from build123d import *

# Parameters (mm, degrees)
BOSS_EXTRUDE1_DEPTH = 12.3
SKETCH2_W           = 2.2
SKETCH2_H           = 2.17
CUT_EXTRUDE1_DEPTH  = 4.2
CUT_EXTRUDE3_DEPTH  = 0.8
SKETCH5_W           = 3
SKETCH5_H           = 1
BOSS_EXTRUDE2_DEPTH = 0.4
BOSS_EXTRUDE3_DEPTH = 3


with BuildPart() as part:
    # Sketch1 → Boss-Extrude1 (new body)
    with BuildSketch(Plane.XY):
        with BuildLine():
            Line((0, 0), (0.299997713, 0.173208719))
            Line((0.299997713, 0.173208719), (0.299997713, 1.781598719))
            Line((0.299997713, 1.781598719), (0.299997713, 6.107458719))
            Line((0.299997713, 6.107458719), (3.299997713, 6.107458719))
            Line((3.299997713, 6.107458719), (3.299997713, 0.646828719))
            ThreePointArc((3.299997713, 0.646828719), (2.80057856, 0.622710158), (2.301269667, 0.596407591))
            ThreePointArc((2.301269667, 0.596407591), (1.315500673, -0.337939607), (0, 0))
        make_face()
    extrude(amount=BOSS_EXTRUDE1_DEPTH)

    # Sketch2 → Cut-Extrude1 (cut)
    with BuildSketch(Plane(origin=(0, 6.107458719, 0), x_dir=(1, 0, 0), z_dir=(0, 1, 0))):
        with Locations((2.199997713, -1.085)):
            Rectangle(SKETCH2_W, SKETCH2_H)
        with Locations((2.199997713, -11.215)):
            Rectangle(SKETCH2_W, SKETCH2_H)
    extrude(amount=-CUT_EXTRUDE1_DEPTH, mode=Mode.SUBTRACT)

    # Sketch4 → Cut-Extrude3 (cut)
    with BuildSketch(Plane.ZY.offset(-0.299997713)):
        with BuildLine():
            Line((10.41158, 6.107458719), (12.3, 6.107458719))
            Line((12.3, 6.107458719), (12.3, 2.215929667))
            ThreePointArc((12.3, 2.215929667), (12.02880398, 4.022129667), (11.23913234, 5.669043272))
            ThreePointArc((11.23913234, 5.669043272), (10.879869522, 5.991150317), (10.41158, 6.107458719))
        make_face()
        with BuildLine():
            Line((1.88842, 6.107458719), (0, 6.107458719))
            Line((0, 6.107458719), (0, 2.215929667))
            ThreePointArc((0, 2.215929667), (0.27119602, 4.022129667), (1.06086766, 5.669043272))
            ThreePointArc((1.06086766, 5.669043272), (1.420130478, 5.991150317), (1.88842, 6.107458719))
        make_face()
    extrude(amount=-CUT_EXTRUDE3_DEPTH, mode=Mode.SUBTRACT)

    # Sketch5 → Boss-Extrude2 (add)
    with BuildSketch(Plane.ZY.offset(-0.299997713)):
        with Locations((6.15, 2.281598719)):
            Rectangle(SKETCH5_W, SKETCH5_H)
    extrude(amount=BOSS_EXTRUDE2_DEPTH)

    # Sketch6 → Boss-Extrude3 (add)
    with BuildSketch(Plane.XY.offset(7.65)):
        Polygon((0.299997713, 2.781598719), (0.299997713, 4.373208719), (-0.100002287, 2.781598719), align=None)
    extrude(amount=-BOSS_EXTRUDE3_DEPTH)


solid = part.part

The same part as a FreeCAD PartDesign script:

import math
import FreeCAD as App
import Part
import Sketcher

V = App.Vector
Q = App.Units.Quantity

doc = App.newDocument("Part")
params = doc.addObject("Spreadsheet::Sheet", "Params")
for row, (alias, value) in enumerate([
    ("sketch1_width", "3 mm"),
    ("pad1_length", "12.3 mm"),
    ("sketch2_width", "2.2 mm"),
    ("sketch2_height", "2.17 mm"),
    ("pocket1_length", "4.2 mm"),
    ("pocket2_length", "0.8 mm"),
    ("sketch4_width", "1 mm"),
    ("sketch4_height", "3 mm"),
    ("pad2_length", "0.4 mm"),
    ("sketch5_width", "0.4 mm"),
    ("pad3_length", "3 mm"),
], start=1):
    params.set(f"A{row}", alias)
    params.set(f"B{row}", "=" + value)
    params.setAlias(f"B{row}", alias)

body = doc.addObject("PartDesign::Body", "Body")

# Sketch on XY plane
sketch1 = doc.addObject("Sketcher::SketchObject", "Sketch")
body.addObject(sketch1)
sketch1.AttachmentSupport = (doc.XY_Plane, [""])
sketch1.MapMode = "FlatFace"
sketch1.addGeometry([
    Part.LineSegment(V(0.299998, 0.173209, 0), V(0, 0, 0)),  # 0
    Part.ArcOfCircle(Part.Circle(V(0.963377, 1.020747, 0), V(0, 0, 1), 1.403574), math.radians(-133.343791), math.radians(-17.597465)),  # 1
    Part.ArcOfCircle(Part.Circle(V(8.564898, -113.555374, 0), V(0, 0, 1), 114.323499), math.radians(92.639556), math.radians(93.14073)),  # 2
    Part.LineSegment(V(3.299998, 0.646829, 0), V(3.299998, 6.107459, 0)),  # 3
    Part.LineSegment(V(3.299998, 6.107459, 0), V(0.299998, 6.107459, 0)),  # 4
    Part.LineSegment(V(0.299998, 6.107459, 0), V(0.299998, 0.173209, 0)),  # 5
], False)
sketch1.addConstraint([
    Sketcher.Constraint("Coincident", 0, 2, 1, 1),
    Sketcher.Constraint("Coincident", 1, 2, 2, 2),
    Sketcher.Constraint("Coincident", 2, 1, 3, 1),
    Sketcher.Constraint("Coincident", 3, 2, 4, 1),
    Sketcher.Constraint("Coincident", 4, 2, 5, 1),
    Sketcher.Constraint("Coincident", 5, 2, 0, 1),
    Sketcher.Constraint("Vertical", 3),
    Sketcher.Constraint("Horizontal", 4),
    Sketcher.Constraint("Vertical", 5),
    Sketcher.Constraint("Coincident", 0, 2, -1, 1),
    Sketcher.Constraint("DistanceX", 4, 2, 4, 1, Q("3 mm")),
    Sketcher.Constraint("Radius", 2, Q("114.323499 mm")),
    Sketcher.Constraint("Radius", 1, Q("1.403574 mm")),
    Sketcher.Constraint("DistanceY", 3, 1, 3, 2, Q("5.46063 mm")),
    Sketcher.Constraint("DistanceY", 5, 2, 5, 1, Q("5.93425 mm")),
    Sketcher.Constraint("DistanceX", -1, 1, 2, 3, Q("8.564898 mm")),
    Sketcher.Constraint("DistanceX", 2, 1, 2, 3, Q("5.264901 mm")),
    Sketcher.Constraint("DistanceY", 5, 2, 1, 2, Q("0.423199 mm")),
    Sketcher.Constraint("Distance", 0, Q("0.34641 mm")),
])
sketch1.setExpression("Constraints[10]", "Params.sketch1_width")
pad1 = doc.addObject("PartDesign::Pad", "Pad")
body.addObject(pad1)
pad1.Profile = sketch1
pad1.setExpression("Length", "Params.pad1_length")

# Sketch on XZ plane
sketch2 = doc.addObject("Sketcher::SketchObject", "Sketch001")
body.addObject(sketch2)
sketch2.AttachmentSupport = (doc.XZ_Plane, [""])
sketch2.MapMode = "FlatFace"
sketch2.AttachmentOffset = App.Placement(V(0, 0, -6.107459), App.Rotation())
sketch2.addGeometry([
    Part.LineSegment(V(1.099998, 0, 0), V(1.099998, 2.17, 0)),  # 0
    Part.LineSegment(V(1.099998, 2.17, 0), V(3.299998, 2.17, 0)),  # 1
    Part.LineSegment(V(3.299998, 2.17, 0), V(3.299998, 0, 0)),  # 2
    Part.LineSegment(V(3.299998, 0, 0), V(1.099998, 0, 0)),  # 3
    Part.LineSegment(V(1.099998, 10.13, 0), V(1.099998, 12.3, 0)),  # 4
    Part.LineSegment(V(1.099998, 12.3, 0), V(3.299998, 12.3, 0)),  # 5
    Part.LineSegment(V(3.299998, 12.3, 0), V(3.299998, 10.13, 0)),  # 6
    Part.LineSegment(V(3.299998, 10.13, 0), V(1.099998, 10.13, 0)),  # 7
], False)
sketch2.addConstraint([
    Sketcher.Constraint("Coincident", 0, 2, 1, 1),
    Sketcher.Constraint("Coincident", 1, 2, 2, 1),
    Sketcher.Constraint("Coincident", 2, 2, 3, 1),
    Sketcher.Constraint("Coincident", 3, 2, 0, 1),
    Sketcher.Constraint("Coincident", 4, 2, 5, 1),
    Sketcher.Constraint("Coincident", 5, 2, 6, 1),
    Sketcher.Constraint("Coincident", 6, 2, 7, 1),
    Sketcher.Constraint("Coincident", 7, 2, 4, 1),
    Sketcher.Constraint("Vertical", 0),
    Sketcher.Constraint("Horizontal", 1),
    Sketcher.Constraint("Vertical", 2),
    Sketcher.Constraint("Horizontal", 3),
    Sketcher.Constraint("Vertical", 4),
    Sketcher.Constraint("Horizontal", 5),
    Sketcher.Constraint("Vertical", 6),
    Sketcher.Constraint("Horizontal", 7),
    Sketcher.Constraint("PointOnObject", 2, 2, -1),
    Sketcher.Constraint("Vertical", 3, 2, 4, 2),
    Sketcher.Constraint("Vertical", 2, 2, 5, 2),
    Sketcher.Constraint("Equal", 2, 4),
    Sketcher.Constraint("DistanceX", 1, 1, 1, 2, Q("2.2 mm")),
    Sketcher.Constraint("DistanceY", 0, 1, 0, 2, Q("2.17 mm")),
    Sketcher.Constraint("DistanceY", -1, 1, 4, 2, Q("12.3 mm")),
    Sketcher.Constraint("DistanceX", -1, 1, 0, 2, Q("1.099998 mm")),
])
sketch2.setExpression("Constraints[20]", "Params.sketch2_width")
sketch2.setExpression("Constraints[21]", "Params.sketch2_height")
pocket1 = doc.addObject("PartDesign::Pocket", "Pocket")
body.addObject(pocket1)
pocket1.Profile = sketch2
pocket1.setExpression("Length", "Params.pocket1_length")
pocket1.Reversed = True

# Sketch on YZ plane
sketch3 = doc.addObject("Sketcher::SketchObject", "Sketch002")
body.addObject(sketch3)
sketch3.AttachmentSupport = (doc.YZ_Plane, [""])
sketch3.MapMode = "FlatFace"
sketch3.AttachmentOffset = App.Placement(V(0, 0, 0.299998), App.Rotation())
sketch3.addGeometry([
    Part.LineSegment(V(6.107459, 12.3, 0), V(6.107459, 10.41158, 0)),  # 0
    Part.ArcOfCircle(Part.Circle(V(5.107767, 10.411877, 0), V(0, 0, 1), 0.999691), math.radians(-0.016996), math.radians(55.843926)),  # 1
    Part.ArcOfCircle(Part.Circle(V(2.21593, 6.149641, 0), V(0, 0, 1), 6.150359), math.radians(55.843927), math.radians(90)),  # 2
    Part.LineSegment(V(2.21593, 12.3, 0), V(6.107459, 12.3, 0)),  # 3
    Part.LineSegment(V(6.107459, 1.88842, 0), V(6.107459, 0, 0)),  # 4
    Part.LineSegment(V(6.107459, 0, 0), V(2.21593, 0, 0)),  # 5
    Part.ArcOfCircle(Part.Circle(V(2.21593, 6.150359, 0), V(0, 0, 1), 6.150359), math.radians(-90), math.radians(-55.843927)),  # 6
    Part.ArcOfCircle(Part.Circle(V(5.107767, 1.888123, 0), V(0, 0, 1), 0.999691), math.radians(-55.843926), math.radians(0.016996)),  # 7
], False)
sketch3.addConstraint([
    Sketcher.Constraint("Coincident", 0, 2, 1, 1),
    Sketcher.Constraint("Tangent", 1, 2, 2, 1),
    Sketcher.Constraint("Tangent", 2, 2, 3, 1),
    Sketcher.Constraint("Coincident", 3, 2, 0, 1),
    Sketcher.Constraint("Coincident", 4, 2, 5, 1),
    Sketcher.Constraint("Tangent", 5, 2, 6, 1),
    Sketcher.Constraint("Tangent", 6, 2, 7, 1),
    Sketcher.Constraint("Coincident", 7, 2, 4, 1),
    Sketcher.Constraint("Vertical", 0),
    Sketcher.Constraint("Horizontal", 3),
    Sketcher.Constraint("Vertical", 4),
    Sketcher.Constraint("Horizontal", 5),
    Sketcher.Constraint("Equal", 2, 6),
    Sketcher.Constraint("Equal", 1, 7),
    Sketcher.Constraint("PointOnObject", 4, 2, -1),
    Sketcher.Constraint("Vertical", 2, 3, 6, 3),
    Sketcher.Constraint("Vertical", 1, 3, 7, 3),
    Sketcher.Constraint("Equal", 0, 4),
    Sketcher.Constraint("DistanceY", -1, 1, 2, 2, Q("12.3 mm")),
    Sketcher.Constraint("Radius", 1, Q("0.999691 mm")),
    Sketcher.Constraint("Radius", 2, Q("6.150359 mm")),
    Sketcher.Constraint("DistanceX", 3, 1, 3, 2, Q("3.891529 mm")),
    Sketcher.Constraint("DistanceY", 0, 2, 0, 1, Q("1.88842 mm")),
    Sketcher.Constraint("DistanceX", -1, 1, 2, 3, Q("2.21593 mm")),
])
pocket2 = doc.addObject("PartDesign::Pocket", "Pocket001")
body.addObject(pocket2)
pocket2.Profile = sketch3
pocket2.setExpression("Length", "Params.pocket2_length")
pocket2.Reversed = True

# Sketch on YZ plane
sketch4 = doc.addObject("Sketcher::SketchObject", "Sketch003")
body.addObject(sketch4)
sketch4.AttachmentSupport = (doc.YZ_Plane, [""])
sketch4.MapMode = "FlatFace"
sketch4.AttachmentOffset = App.Placement(V(0, 0, 0.299998), App.Rotation())
sketch4.addGeometry([
    Part.LineSegment(V(2.781599, 4.65, 0), V(1.781599, 4.65, 0)),
    Part.LineSegment(V(1.781599, 4.65, 0), V(1.781599, 7.65, 0)),
    Part.LineSegment(V(1.781599, 7.65, 0), V(2.781599, 7.65, 0)),
    Part.LineSegment(V(2.781599, 7.65, 0), V(2.781599, 4.65, 0)),
], False)
sketch4.addConstraint([
    Sketcher.Constraint("Coincident", 0, 2, 1, 1),
    Sketcher.Constraint("Coincident", 1, 2, 2, 1),
    Sketcher.Constraint("Coincident", 2, 2, 3, 1),
    Sketcher.Constraint("Coincident", 3, 2, 0, 1),
    Sketcher.Constraint("Horizontal", 0),
    Sketcher.Constraint("Vertical", 1),
    Sketcher.Constraint("Horizontal", 2),
    Sketcher.Constraint("Vertical", 3),
    Sketcher.Constraint("DistanceX", 0, 2, 0, 1, Q("1 mm")),
    Sketcher.Constraint("DistanceY", 1, 1, 1, 2, Q("3 mm")),
    Sketcher.Constraint("DistanceY", -1, 1, 0, 2, Q("4.65 mm")),
    Sketcher.Constraint("DistanceX", -1, 1, 0, 2, Q("1.781599 mm")),
])
sketch4.setExpression("Constraints[8]", "Params.sketch4_width")
sketch4.setExpression("Constraints[9]", "Params.sketch4_height")
pad2 = doc.addObject("PartDesign::Pad", "Pad001")
body.addObject(pad2)
pad2.Profile = sketch4
pad2.setExpression("Length", "Params.pad2_length")
pad2.Reversed = True

# Sketch on XY plane
sketch5 = doc.addObject("Sketcher::SketchObject", "Sketch004")
body.addObject(sketch5)
sketch5.AttachmentSupport = (doc.XY_Plane, [""])
sketch5.MapMode = "FlatFace"
sketch5.AttachmentOffset = App.Placement(V(0, 0, 7.65), App.Rotation())
sketch5.addGeometry([
    Part.LineSegment(V(0.299998, 2.781599, 0), V(0.299998, 4.373209, 0)),
    Part.LineSegment(V(0.299998, 4.373209, 0), V(-0.100002, 2.781599, 0)),
    Part.LineSegment(V(-0.100002, 2.781599, 0), V(0.299998, 2.781599, 0)),
], False)
sketch5.addConstraint([
    Sketcher.Constraint("Coincident", 0, 2, 1, 1),
    Sketcher.Constraint("Coincident", 1, 2, 2, 1),
    Sketcher.Constraint("Coincident", 2, 2, 0, 1),
    Sketcher.Constraint("Vertical", 0),
    Sketcher.Constraint("Horizontal", 2),
    Sketcher.Constraint("DistanceX", 2, 1, 2, 2, Q("0.4 mm")),
    Sketcher.Constraint("DistanceY", 0, 1, 0, 2, Q("1.59161 mm")),
    Sketcher.Constraint("DistanceY", -1, 1, 1, 2, Q("2.781599 mm")),
    Sketcher.Constraint("DistanceX", -1, 1, 0, 2, Q("0.299998 mm")),
])
sketch5.setExpression("Constraints[5]", "Params.sketch5_width")
pad3 = doc.addObject("PartDesign::Pad", "Pad002")
body.addObject(pad3)
pad3.Profile = sketch5
pad3.setExpression("Length", "Params.pad3_length")
pad3.Reversed = True

doc.recompute()
